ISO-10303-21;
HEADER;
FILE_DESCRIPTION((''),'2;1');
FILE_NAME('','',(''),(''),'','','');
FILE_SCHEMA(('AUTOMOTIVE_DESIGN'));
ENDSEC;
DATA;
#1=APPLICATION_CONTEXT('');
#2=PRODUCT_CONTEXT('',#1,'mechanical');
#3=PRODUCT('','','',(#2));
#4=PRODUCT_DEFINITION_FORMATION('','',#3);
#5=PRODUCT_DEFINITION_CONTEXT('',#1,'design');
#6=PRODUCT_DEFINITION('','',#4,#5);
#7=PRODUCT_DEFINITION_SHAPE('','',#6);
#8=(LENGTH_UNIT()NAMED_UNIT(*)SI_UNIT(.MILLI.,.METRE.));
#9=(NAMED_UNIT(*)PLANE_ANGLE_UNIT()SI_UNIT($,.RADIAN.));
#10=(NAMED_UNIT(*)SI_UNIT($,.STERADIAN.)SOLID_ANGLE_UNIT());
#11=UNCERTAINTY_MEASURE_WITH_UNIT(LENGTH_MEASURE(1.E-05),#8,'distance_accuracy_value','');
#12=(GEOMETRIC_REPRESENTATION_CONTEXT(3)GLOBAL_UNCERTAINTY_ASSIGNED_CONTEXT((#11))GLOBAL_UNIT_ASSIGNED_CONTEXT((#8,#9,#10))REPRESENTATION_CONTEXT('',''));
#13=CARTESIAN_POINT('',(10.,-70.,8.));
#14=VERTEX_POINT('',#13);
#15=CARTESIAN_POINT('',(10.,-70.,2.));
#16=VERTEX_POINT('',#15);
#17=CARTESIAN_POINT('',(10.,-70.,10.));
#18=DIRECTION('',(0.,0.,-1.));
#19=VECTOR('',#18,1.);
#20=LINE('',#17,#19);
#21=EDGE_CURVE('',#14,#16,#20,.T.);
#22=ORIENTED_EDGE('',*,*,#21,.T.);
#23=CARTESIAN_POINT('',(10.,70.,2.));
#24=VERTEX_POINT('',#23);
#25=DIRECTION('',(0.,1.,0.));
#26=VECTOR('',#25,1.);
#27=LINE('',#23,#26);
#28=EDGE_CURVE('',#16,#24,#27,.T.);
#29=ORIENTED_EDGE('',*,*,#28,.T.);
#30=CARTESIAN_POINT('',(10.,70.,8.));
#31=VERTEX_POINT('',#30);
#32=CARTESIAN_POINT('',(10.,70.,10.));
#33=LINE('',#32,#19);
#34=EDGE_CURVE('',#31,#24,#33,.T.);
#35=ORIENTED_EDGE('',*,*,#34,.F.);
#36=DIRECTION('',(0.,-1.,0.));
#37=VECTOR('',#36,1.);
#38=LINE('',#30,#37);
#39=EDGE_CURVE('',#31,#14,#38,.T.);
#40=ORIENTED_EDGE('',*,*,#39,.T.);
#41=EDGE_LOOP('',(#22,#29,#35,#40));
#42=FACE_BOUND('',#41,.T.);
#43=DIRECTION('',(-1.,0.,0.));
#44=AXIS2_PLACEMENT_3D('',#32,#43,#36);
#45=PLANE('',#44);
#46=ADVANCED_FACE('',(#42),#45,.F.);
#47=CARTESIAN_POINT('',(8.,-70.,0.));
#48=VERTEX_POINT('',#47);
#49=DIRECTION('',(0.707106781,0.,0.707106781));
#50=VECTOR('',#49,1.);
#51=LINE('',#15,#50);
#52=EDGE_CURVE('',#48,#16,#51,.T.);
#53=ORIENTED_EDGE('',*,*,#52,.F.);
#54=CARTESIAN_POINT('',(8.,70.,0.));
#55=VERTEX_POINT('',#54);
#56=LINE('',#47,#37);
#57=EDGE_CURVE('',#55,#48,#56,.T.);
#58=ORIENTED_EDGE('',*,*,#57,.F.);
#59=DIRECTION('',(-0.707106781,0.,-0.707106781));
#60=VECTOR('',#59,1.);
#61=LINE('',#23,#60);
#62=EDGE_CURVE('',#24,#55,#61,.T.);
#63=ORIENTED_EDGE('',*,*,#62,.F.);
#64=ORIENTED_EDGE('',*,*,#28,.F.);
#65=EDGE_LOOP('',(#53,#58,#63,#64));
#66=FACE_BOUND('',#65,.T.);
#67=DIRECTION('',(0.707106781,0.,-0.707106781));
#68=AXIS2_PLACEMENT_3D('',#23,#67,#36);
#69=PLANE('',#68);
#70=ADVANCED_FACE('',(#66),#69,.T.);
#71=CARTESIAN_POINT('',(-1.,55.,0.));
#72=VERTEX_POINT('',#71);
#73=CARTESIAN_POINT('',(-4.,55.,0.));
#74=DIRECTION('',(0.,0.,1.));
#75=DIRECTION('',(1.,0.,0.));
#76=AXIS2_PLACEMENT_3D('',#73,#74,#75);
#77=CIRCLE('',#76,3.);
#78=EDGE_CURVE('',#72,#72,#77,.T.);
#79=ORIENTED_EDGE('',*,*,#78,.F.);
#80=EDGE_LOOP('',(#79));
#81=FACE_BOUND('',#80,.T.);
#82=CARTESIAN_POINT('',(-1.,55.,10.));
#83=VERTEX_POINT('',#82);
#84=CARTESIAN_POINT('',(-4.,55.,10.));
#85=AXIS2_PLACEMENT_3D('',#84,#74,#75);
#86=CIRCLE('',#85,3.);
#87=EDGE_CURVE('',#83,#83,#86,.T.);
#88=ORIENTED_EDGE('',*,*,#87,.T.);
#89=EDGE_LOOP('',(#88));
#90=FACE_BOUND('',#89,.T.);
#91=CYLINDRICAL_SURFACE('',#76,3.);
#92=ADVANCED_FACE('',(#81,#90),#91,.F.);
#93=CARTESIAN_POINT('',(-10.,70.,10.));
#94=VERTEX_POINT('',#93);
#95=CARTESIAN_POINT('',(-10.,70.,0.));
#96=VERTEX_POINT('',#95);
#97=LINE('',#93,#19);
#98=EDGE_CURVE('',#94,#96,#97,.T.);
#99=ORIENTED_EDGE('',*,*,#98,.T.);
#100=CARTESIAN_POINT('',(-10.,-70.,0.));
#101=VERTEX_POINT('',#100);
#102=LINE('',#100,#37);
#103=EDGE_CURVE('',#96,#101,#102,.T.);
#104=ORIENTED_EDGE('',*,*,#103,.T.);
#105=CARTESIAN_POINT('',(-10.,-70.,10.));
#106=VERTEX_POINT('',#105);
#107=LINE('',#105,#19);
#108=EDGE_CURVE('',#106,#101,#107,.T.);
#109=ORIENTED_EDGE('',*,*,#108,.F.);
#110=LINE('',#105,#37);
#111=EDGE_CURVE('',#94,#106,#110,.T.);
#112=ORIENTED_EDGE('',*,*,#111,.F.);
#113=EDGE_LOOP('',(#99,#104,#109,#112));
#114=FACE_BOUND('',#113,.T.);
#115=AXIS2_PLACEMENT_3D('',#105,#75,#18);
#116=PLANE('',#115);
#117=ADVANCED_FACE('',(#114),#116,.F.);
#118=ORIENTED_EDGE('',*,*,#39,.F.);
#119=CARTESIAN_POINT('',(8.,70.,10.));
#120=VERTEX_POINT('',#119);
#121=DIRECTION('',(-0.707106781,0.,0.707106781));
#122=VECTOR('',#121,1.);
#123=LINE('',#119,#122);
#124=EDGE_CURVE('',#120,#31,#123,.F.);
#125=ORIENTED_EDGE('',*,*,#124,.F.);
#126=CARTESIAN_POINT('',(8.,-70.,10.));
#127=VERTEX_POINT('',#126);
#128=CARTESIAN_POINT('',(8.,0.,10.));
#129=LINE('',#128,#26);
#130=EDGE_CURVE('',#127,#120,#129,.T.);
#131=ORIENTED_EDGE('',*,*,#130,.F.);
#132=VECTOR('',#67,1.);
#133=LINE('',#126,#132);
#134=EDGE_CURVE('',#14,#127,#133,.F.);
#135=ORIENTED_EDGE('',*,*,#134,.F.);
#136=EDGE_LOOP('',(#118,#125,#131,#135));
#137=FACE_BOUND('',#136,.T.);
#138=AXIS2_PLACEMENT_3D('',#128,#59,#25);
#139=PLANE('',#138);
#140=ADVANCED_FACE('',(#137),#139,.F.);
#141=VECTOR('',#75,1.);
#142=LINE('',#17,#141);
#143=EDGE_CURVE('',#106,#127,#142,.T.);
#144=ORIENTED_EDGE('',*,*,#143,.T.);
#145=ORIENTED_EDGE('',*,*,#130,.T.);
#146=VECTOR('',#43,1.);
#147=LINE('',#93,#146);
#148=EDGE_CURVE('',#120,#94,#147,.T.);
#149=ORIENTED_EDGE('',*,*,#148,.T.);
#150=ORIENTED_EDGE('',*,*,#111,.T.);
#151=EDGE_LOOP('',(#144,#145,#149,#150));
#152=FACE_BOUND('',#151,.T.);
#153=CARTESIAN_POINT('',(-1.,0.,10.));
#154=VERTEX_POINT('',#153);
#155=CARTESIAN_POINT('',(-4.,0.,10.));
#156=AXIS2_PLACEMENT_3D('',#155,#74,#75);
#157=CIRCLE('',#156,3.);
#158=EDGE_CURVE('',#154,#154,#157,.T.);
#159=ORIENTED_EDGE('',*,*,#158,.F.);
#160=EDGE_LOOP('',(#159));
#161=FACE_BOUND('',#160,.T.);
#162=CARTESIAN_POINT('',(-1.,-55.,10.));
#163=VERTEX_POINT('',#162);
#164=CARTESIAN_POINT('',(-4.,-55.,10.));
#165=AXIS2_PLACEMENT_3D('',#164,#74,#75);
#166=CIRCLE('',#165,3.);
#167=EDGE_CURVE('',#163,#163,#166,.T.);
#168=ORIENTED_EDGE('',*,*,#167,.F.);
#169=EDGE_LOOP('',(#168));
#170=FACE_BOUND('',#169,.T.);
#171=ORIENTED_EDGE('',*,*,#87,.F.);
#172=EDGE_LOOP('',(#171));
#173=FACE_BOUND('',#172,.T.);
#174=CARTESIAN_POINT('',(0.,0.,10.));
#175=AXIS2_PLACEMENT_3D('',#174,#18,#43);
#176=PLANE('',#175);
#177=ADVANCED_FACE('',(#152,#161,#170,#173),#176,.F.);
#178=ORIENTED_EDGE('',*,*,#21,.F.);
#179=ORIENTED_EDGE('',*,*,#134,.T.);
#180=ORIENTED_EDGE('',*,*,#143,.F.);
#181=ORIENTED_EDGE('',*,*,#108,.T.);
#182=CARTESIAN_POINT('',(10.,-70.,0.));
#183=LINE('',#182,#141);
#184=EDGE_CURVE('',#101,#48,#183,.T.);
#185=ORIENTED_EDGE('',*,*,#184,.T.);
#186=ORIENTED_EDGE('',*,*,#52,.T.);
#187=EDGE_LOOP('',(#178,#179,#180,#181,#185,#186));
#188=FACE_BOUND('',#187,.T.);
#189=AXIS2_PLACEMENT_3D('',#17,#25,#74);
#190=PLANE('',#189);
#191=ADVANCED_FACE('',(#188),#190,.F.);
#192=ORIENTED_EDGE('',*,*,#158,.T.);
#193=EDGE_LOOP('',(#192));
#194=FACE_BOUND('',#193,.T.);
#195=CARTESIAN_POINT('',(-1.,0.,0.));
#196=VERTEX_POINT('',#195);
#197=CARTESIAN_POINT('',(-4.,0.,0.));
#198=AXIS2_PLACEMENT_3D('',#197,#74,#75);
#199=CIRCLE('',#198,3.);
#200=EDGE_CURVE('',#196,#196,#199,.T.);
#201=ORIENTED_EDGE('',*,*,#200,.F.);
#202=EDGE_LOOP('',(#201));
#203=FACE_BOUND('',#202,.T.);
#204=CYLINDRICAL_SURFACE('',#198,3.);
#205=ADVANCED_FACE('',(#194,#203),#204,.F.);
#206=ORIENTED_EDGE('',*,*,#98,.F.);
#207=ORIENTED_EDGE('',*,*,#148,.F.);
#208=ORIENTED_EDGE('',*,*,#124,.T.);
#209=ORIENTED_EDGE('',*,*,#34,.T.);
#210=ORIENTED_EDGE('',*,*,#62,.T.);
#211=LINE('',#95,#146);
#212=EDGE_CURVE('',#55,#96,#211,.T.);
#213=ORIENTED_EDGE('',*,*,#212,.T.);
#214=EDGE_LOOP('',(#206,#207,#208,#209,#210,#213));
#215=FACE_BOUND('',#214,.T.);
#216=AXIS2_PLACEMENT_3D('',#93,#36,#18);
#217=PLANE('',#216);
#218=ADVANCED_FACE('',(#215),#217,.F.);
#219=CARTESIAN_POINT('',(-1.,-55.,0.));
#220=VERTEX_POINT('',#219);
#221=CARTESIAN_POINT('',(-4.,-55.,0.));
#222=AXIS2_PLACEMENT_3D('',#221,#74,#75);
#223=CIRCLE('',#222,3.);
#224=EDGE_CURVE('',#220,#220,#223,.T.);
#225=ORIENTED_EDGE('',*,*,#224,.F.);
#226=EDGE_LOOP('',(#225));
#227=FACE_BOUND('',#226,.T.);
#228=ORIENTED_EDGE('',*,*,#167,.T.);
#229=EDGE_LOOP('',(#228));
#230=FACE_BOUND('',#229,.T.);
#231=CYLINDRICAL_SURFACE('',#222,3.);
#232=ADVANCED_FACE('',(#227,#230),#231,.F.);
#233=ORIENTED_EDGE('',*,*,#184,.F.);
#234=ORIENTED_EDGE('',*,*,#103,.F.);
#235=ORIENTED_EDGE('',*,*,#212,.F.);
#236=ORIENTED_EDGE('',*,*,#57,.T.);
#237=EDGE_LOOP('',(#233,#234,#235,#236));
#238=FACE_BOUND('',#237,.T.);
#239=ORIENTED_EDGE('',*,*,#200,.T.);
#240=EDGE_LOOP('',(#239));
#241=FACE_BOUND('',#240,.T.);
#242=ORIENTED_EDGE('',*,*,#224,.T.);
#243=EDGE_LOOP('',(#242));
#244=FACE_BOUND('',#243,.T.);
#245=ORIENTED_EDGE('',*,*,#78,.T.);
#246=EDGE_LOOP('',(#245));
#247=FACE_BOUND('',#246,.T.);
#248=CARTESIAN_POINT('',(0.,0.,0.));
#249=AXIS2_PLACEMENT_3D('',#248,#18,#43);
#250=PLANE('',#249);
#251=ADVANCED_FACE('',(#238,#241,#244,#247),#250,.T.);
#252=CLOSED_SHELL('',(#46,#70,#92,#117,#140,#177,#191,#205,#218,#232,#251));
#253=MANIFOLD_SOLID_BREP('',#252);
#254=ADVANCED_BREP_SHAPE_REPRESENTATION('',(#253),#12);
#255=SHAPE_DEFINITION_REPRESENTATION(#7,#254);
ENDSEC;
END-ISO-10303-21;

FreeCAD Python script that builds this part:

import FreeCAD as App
import Part
import Sketcher

V = App.Vector
Q = App.Units.Quantity


def edges_at(feature, points):
    """Names of the edges that pass closest to the given points."""
    edges = feature.Shape.Edges
    near = lambda p: min(range(len(edges)), key=lambda i: edges[i].distToShape(Part.Vertex(*p))[0])
    return sorted({f"Edge{near(p) + 1}" for p in points})


def add_polygon(sketch, points):
    """Adds a closed chain of lines whose ends are joined by coincident constraints."""
    first, n = sketch.GeometryCount, len(points)
    for a, b in zip(points, points[1:] + points[:1]):
        sketch.addGeometry(Part.LineSegment(App.Vector(*a, 0), App.Vector(*b, 0)), False)
    for i in range(n):
        sketch.addConstraint(Sketcher.Constraint("Coincident", first + i, 2, first + (i + 1) % n, 1))

doc = App.newDocument("Part")
body = doc.addObject("PartDesign::Body", "Body")

sketch1 = body.newObject("Sketcher::SketchObject", "Sketch")
sketch1.AttachmentSupport = (doc.getObject("XY_Plane"), [""])
sketch1.MapMode = "FlatFace"
add_polygon(sketch1, [(-10, 70), (-10, -70), (10, -70), (10, 70)])
sketch1.addConstraint([
    Sketcher.Constraint("Vertical", 0),
    Sketcher.Constraint("Horizontal", 1),
    Sketcher.Constraint("Vertical", 2),
    Sketcher.Constraint("Horizontal", 3),
    Sketcher.Constraint("Symmetric", 0, 2, 2, 2, -1, 1),
    Sketcher.Constraint("DistanceX", 1, 1, 1, 2, Q("20 mm")),
    Sketcher.Constraint("DistanceY", 0, 2, 0, 1, Q("140 mm")),
])
pad1 = body.newObject("PartDesign::Pad", "Pad")
pad1.Profile = sketch1
pad1.Length = 10
doc.recompute()

chamfer = body.newObject("PartDesign::Chamfer", "Chamfer")
chamfer.Base = (pad1, edges_at(pad1, [(10, 0, 0), (10, 0, 10)]))
chamfer.Size = 2

sketch2 = body.newObject("Sketcher::SketchObject", "Sketch001")
sketch2.AttachmentSupport = (doc.getObject("XY_Plane"), [""])
sketch2.MapMode = "FlatFace"
sketch2.AttachmentOffset = App.Placement(V(0, 0, 10), App.Rotation())
sketch2.addGeometry([
    Part.Circle(V(-4, 55, 0), V(0, 0, 1), 3),
    Part.Circle(V(-4, 0, 0), V(0, 0, 1), 3),
    Part.Circle(V(-4, -55, 0), V(0, 0, 1), 3),
], False)
sketch2.addConstraint([
    Sketcher.Constraint("Equal", 0, 1),
    Sketcher.Constraint("Equal", 1, 2),
    Sketcher.Constraint("Symmetric", 0, 3, 2, 3, -1),
    Sketcher.Constraint("PointOnObject", 1, 3, -1),
    Sketcher.Constraint("Vertical", 0, 3, 1, 3),
    Sketcher.Constraint("Diameter", 0, Q("6 mm")),
    Sketcher.Constraint("DistanceX", 0, 3, -1, 1, Q("4 mm")),
    Sketcher.Constraint("DistanceY", -1, 1, 0, 3, Q("55 mm")),
])
pocket1 = body.newObject("PartDesign::Pocket", "Pocket")
pocket1.Profile = sketch2
pocket1.Type = "ThroughAll"

doc.recompute()
